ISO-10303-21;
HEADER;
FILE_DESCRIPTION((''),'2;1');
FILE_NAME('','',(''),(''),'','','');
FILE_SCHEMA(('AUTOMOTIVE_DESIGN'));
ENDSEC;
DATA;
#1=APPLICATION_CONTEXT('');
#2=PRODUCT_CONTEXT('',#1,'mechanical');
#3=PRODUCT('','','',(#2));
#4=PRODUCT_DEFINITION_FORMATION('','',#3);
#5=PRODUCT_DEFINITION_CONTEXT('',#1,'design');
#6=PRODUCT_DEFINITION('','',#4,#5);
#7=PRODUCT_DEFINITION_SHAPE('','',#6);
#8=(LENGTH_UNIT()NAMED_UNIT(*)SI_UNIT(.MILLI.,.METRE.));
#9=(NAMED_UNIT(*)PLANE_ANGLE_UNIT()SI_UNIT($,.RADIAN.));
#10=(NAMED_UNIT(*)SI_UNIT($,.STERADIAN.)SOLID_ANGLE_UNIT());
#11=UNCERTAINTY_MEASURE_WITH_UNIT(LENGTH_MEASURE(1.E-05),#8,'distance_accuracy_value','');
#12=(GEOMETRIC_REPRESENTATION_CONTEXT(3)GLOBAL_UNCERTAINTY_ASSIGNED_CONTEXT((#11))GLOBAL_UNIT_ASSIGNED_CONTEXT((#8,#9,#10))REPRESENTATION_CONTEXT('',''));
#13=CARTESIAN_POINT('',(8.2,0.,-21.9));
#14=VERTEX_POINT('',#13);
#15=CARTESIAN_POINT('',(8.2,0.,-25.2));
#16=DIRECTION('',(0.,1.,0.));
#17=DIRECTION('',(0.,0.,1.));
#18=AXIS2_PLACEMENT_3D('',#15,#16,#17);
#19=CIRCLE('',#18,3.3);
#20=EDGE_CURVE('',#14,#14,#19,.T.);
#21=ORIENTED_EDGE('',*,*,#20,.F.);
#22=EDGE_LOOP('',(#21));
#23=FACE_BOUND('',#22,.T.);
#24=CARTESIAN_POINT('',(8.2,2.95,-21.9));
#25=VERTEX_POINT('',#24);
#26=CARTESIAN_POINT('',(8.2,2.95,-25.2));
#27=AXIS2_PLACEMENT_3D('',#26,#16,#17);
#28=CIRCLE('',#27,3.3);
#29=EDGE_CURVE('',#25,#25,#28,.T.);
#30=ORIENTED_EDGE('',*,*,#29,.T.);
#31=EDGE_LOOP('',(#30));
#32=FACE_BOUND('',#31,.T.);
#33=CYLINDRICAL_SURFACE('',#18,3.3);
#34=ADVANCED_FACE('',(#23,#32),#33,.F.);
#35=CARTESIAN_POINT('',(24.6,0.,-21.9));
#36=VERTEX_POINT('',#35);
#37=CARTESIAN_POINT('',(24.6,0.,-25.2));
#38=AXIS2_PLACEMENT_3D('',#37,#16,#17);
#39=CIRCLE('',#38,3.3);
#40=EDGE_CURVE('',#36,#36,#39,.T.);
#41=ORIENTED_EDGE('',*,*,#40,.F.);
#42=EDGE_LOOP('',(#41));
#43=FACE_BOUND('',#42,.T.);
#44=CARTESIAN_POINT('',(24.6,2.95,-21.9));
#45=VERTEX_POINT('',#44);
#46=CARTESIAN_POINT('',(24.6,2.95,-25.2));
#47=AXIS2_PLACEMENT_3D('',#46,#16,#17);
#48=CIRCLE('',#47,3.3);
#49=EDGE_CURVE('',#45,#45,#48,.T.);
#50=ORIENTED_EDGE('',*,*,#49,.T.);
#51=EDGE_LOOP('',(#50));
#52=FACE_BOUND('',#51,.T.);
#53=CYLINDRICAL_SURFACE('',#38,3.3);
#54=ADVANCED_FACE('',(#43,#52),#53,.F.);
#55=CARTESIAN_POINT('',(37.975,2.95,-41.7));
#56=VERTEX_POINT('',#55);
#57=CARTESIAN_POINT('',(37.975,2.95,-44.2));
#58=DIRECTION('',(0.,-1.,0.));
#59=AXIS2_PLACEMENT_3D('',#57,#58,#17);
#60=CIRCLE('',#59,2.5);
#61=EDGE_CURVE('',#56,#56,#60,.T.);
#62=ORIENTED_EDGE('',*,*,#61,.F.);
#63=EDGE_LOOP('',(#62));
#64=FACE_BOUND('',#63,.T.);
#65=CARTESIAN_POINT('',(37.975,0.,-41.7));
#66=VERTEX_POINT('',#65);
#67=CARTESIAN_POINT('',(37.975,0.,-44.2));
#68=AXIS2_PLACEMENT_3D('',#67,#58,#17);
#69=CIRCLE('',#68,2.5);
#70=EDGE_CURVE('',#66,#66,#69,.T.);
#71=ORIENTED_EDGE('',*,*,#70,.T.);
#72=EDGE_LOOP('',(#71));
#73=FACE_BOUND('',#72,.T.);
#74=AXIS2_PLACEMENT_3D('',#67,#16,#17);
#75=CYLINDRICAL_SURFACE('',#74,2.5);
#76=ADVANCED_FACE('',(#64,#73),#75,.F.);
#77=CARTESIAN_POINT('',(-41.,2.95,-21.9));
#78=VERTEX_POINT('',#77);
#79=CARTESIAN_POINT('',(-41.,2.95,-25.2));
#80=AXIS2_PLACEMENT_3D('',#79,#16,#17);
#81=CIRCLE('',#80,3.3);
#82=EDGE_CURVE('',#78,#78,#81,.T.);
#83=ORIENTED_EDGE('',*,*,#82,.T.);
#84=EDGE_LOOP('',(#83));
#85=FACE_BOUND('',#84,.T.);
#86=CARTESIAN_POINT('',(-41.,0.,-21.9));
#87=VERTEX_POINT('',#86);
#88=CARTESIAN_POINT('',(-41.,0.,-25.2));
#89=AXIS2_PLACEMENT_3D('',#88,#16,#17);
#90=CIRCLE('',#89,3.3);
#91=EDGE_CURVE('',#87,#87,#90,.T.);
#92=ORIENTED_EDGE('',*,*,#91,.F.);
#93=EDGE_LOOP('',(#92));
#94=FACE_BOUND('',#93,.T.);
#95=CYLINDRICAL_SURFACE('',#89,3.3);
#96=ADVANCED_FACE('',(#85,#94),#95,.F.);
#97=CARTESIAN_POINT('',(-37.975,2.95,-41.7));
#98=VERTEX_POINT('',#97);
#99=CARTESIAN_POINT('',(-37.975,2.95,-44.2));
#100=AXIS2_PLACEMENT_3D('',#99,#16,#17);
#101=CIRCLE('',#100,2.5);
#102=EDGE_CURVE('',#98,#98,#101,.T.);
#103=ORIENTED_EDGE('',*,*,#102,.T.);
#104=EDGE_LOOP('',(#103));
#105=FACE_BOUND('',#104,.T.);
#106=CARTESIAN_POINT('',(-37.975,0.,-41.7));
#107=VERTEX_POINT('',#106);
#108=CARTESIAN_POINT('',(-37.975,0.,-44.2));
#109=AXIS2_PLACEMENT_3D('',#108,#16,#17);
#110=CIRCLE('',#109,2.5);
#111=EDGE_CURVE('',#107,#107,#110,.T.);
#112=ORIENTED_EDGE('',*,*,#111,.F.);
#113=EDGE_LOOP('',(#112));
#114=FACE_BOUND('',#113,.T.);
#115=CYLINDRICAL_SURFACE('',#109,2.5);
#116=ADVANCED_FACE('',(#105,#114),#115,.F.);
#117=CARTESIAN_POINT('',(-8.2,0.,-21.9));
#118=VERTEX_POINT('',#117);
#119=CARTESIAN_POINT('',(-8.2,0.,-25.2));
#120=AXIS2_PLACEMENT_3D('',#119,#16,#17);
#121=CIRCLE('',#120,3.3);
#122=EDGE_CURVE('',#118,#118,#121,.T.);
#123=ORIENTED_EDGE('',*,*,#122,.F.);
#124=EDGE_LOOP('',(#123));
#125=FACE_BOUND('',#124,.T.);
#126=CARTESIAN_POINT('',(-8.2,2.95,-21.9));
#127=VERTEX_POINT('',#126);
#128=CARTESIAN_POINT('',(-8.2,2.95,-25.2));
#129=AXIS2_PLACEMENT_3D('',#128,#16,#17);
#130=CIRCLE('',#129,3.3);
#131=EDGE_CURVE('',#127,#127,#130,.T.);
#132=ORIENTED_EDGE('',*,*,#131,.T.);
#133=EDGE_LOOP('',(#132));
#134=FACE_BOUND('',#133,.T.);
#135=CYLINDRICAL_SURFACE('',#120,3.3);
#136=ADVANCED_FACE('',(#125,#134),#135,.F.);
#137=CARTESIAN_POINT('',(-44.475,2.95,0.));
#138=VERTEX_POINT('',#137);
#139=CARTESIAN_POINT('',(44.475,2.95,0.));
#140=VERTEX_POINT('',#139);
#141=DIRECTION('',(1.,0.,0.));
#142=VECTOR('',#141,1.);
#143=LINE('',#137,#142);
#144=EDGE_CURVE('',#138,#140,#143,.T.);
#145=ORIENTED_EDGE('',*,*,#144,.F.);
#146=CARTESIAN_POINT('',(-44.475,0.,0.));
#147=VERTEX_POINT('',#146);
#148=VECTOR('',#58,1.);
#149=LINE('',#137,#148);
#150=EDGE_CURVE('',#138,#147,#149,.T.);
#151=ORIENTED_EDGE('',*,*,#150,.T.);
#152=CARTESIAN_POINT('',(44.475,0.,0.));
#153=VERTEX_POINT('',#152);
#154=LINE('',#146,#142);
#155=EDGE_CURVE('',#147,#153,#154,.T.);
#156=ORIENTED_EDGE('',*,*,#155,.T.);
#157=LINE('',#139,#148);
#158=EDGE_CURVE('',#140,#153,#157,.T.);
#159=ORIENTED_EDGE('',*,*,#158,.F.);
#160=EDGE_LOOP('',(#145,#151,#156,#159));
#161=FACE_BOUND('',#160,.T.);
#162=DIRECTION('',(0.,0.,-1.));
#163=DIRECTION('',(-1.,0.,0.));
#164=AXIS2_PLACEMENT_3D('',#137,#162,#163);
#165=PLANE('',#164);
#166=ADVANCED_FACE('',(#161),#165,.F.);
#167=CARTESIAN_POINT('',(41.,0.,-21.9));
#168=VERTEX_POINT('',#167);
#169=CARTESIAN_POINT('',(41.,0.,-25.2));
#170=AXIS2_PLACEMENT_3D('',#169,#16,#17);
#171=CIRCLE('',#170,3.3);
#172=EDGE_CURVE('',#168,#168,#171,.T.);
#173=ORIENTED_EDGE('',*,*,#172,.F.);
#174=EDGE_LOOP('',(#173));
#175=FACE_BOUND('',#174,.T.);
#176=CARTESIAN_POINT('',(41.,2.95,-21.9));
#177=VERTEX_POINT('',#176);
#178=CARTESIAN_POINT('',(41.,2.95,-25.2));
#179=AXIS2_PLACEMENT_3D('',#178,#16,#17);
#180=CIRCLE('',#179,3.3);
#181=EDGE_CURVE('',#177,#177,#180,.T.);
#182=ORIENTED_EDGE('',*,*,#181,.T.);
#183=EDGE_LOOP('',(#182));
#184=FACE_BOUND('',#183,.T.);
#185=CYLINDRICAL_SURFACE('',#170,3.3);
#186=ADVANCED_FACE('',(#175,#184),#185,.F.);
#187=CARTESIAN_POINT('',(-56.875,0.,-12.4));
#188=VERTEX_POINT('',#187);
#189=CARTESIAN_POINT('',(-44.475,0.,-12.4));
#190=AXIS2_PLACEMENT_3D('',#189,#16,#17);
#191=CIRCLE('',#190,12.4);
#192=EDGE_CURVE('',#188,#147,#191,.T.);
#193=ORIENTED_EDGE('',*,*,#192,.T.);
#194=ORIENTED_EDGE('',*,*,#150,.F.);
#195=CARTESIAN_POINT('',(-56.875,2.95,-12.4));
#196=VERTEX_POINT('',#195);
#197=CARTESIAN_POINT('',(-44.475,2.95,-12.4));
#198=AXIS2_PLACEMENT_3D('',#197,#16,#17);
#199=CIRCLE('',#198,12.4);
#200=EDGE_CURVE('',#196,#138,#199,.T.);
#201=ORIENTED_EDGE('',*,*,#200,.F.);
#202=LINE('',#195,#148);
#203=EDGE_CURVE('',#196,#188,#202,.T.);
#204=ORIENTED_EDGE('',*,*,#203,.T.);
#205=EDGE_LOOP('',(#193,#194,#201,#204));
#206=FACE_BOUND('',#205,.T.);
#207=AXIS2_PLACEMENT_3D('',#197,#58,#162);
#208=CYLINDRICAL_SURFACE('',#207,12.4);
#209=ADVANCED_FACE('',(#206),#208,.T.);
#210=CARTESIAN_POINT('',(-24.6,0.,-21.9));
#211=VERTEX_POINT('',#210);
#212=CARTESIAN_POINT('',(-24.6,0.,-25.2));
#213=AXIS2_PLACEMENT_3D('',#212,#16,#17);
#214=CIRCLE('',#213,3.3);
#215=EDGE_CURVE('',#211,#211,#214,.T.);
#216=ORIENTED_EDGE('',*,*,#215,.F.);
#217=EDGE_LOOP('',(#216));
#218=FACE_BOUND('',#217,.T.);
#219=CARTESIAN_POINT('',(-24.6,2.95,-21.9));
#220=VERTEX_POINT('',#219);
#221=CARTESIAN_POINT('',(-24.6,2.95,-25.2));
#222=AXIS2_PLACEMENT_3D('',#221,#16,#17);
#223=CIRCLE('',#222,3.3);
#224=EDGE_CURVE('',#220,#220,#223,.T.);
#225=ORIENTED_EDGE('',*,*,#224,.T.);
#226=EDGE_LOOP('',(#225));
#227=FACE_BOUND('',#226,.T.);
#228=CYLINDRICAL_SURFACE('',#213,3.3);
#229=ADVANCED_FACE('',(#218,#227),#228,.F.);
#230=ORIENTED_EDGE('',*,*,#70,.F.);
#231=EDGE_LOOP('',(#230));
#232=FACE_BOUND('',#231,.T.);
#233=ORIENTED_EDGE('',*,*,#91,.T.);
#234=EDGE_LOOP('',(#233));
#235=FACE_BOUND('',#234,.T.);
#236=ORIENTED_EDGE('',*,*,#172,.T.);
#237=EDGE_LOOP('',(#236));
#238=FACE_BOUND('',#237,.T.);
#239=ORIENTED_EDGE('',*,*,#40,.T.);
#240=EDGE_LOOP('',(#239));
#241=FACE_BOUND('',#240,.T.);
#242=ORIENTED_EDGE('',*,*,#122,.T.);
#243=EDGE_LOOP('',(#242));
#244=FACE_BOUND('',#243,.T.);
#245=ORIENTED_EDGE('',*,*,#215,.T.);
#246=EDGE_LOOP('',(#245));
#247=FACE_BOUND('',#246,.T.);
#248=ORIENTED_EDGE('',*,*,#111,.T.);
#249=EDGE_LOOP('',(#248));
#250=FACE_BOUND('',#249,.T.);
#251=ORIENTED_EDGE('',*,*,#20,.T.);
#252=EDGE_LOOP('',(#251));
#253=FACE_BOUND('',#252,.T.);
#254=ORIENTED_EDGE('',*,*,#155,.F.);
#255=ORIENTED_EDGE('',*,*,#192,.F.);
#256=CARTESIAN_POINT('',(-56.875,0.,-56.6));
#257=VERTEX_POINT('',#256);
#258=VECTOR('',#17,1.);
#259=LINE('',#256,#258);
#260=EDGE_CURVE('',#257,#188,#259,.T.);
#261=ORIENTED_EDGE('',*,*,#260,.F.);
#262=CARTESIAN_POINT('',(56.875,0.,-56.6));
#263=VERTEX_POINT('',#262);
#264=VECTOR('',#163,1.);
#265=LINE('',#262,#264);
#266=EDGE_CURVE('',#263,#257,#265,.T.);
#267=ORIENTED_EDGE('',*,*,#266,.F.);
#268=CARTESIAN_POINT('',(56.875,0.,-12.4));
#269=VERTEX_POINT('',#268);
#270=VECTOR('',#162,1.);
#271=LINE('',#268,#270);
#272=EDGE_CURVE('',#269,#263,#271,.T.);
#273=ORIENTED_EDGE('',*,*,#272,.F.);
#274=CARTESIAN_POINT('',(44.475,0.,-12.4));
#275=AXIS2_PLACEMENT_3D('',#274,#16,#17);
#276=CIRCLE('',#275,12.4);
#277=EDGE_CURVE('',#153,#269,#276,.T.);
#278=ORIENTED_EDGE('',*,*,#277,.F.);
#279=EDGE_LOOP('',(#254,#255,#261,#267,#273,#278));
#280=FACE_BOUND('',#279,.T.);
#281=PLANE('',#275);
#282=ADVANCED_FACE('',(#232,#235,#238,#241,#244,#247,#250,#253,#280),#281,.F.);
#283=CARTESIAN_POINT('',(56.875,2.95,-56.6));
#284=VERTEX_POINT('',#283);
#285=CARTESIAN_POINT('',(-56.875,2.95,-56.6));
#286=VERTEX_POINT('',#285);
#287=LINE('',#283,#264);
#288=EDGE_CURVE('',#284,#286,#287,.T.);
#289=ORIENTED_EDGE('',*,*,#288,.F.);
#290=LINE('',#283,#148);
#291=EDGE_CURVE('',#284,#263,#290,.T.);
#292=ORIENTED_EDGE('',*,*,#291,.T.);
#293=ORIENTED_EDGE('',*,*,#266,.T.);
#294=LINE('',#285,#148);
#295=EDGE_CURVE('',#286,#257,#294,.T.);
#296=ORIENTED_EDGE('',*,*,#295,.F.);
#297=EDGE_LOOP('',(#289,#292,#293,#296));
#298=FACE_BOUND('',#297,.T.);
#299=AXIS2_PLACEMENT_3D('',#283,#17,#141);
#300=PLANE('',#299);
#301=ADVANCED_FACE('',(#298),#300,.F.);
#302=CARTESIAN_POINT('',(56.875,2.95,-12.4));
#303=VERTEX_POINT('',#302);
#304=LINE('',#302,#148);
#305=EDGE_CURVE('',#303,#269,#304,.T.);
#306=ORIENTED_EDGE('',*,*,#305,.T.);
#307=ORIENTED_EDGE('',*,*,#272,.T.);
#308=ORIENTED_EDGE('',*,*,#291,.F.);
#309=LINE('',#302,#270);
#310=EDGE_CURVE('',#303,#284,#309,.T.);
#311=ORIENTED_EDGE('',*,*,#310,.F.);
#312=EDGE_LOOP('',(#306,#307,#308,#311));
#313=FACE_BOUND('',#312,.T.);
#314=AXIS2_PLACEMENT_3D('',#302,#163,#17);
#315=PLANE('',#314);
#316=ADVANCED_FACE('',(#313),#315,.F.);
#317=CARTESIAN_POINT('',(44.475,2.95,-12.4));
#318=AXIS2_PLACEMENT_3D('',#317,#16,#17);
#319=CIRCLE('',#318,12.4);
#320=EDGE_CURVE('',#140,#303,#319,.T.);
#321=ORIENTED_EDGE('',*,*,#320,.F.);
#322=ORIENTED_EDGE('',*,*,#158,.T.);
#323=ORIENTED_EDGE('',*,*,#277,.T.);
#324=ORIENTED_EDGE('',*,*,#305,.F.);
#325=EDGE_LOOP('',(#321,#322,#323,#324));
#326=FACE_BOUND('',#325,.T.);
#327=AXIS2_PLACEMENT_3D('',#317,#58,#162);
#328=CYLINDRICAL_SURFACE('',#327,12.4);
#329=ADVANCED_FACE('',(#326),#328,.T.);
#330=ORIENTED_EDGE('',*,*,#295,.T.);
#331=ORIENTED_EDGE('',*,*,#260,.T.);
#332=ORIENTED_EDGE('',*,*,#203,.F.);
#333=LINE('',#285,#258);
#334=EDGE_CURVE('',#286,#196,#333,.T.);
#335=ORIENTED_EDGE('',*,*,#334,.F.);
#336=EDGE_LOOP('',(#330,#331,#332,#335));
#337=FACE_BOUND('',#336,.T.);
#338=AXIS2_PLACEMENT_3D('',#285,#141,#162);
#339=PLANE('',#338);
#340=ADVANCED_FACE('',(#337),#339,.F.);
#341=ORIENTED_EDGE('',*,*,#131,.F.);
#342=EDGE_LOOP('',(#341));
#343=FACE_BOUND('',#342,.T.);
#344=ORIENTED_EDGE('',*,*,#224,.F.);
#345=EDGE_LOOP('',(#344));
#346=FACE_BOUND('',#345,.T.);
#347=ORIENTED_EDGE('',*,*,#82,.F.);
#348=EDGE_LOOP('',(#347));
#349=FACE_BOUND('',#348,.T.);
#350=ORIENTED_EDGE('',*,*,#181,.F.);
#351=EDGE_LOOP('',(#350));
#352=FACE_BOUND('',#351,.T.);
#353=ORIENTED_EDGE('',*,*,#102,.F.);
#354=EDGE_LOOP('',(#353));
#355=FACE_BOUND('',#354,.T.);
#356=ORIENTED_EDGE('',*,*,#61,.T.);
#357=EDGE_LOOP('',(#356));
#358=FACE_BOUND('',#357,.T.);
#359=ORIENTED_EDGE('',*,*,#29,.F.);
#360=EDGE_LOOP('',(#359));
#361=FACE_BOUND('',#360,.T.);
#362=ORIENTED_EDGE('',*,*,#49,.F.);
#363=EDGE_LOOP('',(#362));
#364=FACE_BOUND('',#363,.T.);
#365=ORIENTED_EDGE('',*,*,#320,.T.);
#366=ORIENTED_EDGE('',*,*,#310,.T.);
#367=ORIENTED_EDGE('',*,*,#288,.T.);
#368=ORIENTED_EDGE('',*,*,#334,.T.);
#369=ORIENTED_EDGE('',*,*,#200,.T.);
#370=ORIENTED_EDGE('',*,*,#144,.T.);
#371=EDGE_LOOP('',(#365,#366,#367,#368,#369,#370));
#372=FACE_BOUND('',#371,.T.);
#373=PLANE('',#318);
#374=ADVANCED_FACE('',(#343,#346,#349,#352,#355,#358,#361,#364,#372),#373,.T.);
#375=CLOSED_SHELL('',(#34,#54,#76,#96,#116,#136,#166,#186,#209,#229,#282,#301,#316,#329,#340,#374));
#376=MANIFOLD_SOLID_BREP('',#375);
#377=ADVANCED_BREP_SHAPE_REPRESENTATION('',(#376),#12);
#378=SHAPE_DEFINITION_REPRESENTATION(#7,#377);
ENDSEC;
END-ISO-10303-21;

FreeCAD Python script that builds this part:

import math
import FreeCAD as App
import Part
import Sketcher
from FreeCAD import Vector
Q = App.Units.Quantity

doc = App.newDocument("Part")
params = doc.addObject("Spreadsheet::Sheet", "Params")
for row, (alias, value) in enumerate([
    ("sketch1_radius", "12.4 mm"),
    ("sketch1_height", "44.2 mm"),
    ("sketch1_width", "88.95 mm"),
    ("pad1_length", "2.95 mm"),
    ("sketch2_diameter", "6.6 mm"),
    ("sketch3_diameter", "5 mm"),
], start=1):
    params.set(f"A{row}", alias)
    params.set(f"B{row}", "=" + value)
    params.setAlias(f"B{row}", alias)

body = doc.addObject("PartDesign::Body", "Body")

# Sketch on XZ plane
sketch1 = body.newObject("Sketcher::SketchObject", "Sketch")
sketch1.AttachmentSupport = (doc.getObject("XZ_Plane"), [""])
sketch1.MapMode = "FlatFace"
sketch1.addGeometry(Part.LineSegment(Vector(-44, 0, 0), Vector(44, 0, 0)), False)
sketch1.addGeometry(Part.ArcOfCircle(Part.Circle(Vector(44, -12, 0), Vector(0, 0, 1), 12), math.radians(0), math.radians(90)), False)
sketch1.addGeometry(Part.LineSegment(Vector(57, -12, 0), Vector(57, -57, 0)), False)
sketch1.addGeometry(Part.LineSegment(Vector(57, -57, 0), Vector(-57, -57, 0)), False)
sketch1.addGeometry(Part.LineSegment(Vector(-57, -57, 0), Vector(-57, -12, 0)), False)
sketch1.addGeometry(Part.ArcOfCircle(Part.Circle(Vector(-44, -12, 0), Vector(0, 0, 1), 12), math.radians(90), math.radians(180)), False)
sketch1.addConstraint(Sketcher.Constraint("Tangent", 0, 2, 1, 2))
sketch1.addConstraint(Sketcher.Constraint("Tangent", 1, 1, 2, 1))
sketch1.addConstraint(Sketcher.Constraint("Coincident", 2, 2, 3, 1))
sketch1.addConstraint(Sketcher.Constraint("Coincident", 3, 2, 4, 1))
sketch1.addConstraint(Sketcher.Constraint("Tangent", 4, 2, 5, 2))
sketch1.addConstraint(Sketcher.Constraint("Tangent", 5, 1, 0, 1))
sketch1.addConstraint(Sketcher.Constraint("Horizontal", 0))
sketch1.addConstraint(Sketcher.Constraint("Vertical", 2))
sketch1.addConstraint(Sketcher.Constraint("Horizontal", 3))
sketch1.addConstraint(Sketcher.Constraint("Vertical", 4))
sketch1.addConstraint(Sketcher.Constraint("Equal", 1, 5))
sketch1.addConstraint(Sketcher.Constraint("Symmetric", 0, 2, 5, 1, -1, 1))
sketch1.addConstraint(Sketcher.Constraint("Radius", 1, Q("12.4 mm")))
sketch1.addConstraint(Sketcher.Constraint("DistanceY", 2, 2, 2, 1, Q("44.2 mm")))
sketch1.addConstraint(Sketcher.Constraint("DistanceX", 0, 1, 0, 2, Q("88.95 mm")))
sketch1.setExpression("Constraints[12]", "Params.sketch1_radius")
sketch1.setExpression("Constraints[13]", "Params.sketch1_height")
sketch1.setExpression("Constraints[14]", "Params.sketch1_width")
pad1 = body.newObject("PartDesign::Pad", "Pad")
pad1.Profile = sketch1
pad1.setExpression("Length", "Params.pad1_length")
pad1.Reversed = True

# Sketch on XZ plane
sketch2 = body.newObject("Sketcher::SketchObject", "Sketch001")
sketch2.AttachmentSupport = (doc.getObject("XZ_Plane"), [""])
sketch2.MapMode = "FlatFace"
sketch2.AttachmentOffset = App.Placement(Vector(0, 0, -2.95), App.Rotation())
sketch2.addGeometry(Part.Circle(Vector(-41, -25.2, 0), Vector(0, 0, 1), 3.3), False)
sketch2.addGeometry(Part.Circle(Vector(-24.6, -25.2, 0), Vector(0, 0, 1), 3.3), False)
sketch2.addGeometry(Part.Circle(Vector(-8.2, -25.2, 0), Vector(0, 0, 1), 3.3), False)
sketch2.addGeometry(Part.Circle(Vector(8.2, -25.2, 0), Vector(0, 0, 1), 3.3), False)
sketch2.addGeometry(Part.Circle(Vector(24.6, -25.2, 0), Vector(0, 0, 1), 3.3), False)
sketch2.addGeometry(Part.Circle(Vector(41, -25.2, 0), Vector(0, 0, 1), 3.3), False)
sketch2.addConstraint(Sketcher.Constraint("Equal", 0, 1))
sketch2.addConstraint(Sketcher.Constraint("Equal", 1, 2))
sketch2.addConstraint(Sketcher.Constraint("Equal", 2, 3))
sketch2.addConstraint(Sketcher.Constraint("Equal", 3, 4))
sketch2.addConstraint(Sketcher.Constraint("Equal", 4, 5))
sketch2.addConstraint(Sketcher.Constraint("Symmetric", 2, 3, 3, 3, -2))
sketch2.addConstraint(Sketcher.Constraint("Symmetric", 1, 3, 4, 3, -2))
sketch2.addConstraint(Sketcher.Constraint("Symmetric", 0, 3, 5, 3, -2))
sketch2.addConstraint(Sketcher.Constraint("Horizontal", 0, 3, 1, 3))
sketch2.addConstraint(Sketcher.Constraint("Horizontal", 1, 3, 2, 3))
sketch2.addConstraint(Sketcher.Constraint("Diameter", 0, Q("6.6 mm")))
sketch2.addConstraint(Sketcher.Constraint("DistanceX", 0, 3, -1, 1, Q("41 mm")))
sketch2.addConstraint(Sketcher.Constraint("DistanceY", 0, 3, -1, 1, Q("25.2 mm")))
sketch2.addConstraint(Sketcher.Constraint("DistanceX", 1, 3, -1, 1, Q("24.6 mm")))
sketch2.addConstraint(Sketcher.Constraint("DistanceX", 2, 3, -1, 1, Q("8.2 mm")))
sketch2.setExpression("Constraints[10]", "Params.sketch2_diameter")
pocket1 = body.newObject("PartDesign::Pocket", "Pocket")
pocket1.Profile = sketch2
pocket1.Type = "ThroughAll"
pocket1.Reversed = True

# Sketch on XZ plane
sketch3 = body.newObject("Sketcher::SketchObject", "Sketch002")
sketch3.AttachmentSupport = (doc.getObject("XZ_Plane"), [""])
sketch3.MapMode = "FlatFace"
sketch3.AttachmentOffset = App.Placement(Vector(0, 0, -2.95), App.Rotation())
sketch3.addGeometry(Part.Circle(Vector(-38, -44.2, 0), Vector(0, 0, 1), 2.5), False)
sketch3.addConstraint(Sketcher.Constraint("Diameter", 0, Q("5 mm")))
sketch3.addConstraint(Sketcher.Constraint("DistanceY", 0, 3, -1, 1, Q("44.2 mm")))
sketch3.addConstraint(Sketcher.Constraint("DistanceX", 0, 3, -1, 1, Q("37.975 mm")))
sketch3.setExpression("Constraints[0]", "Params.sketch3_diameter")
pocket2 = body.newObject("PartDesign::Pocket", "Pocket001")
pocket2.Profile = sketch3
pocket2.Type = "ThroughAll"
pocket2.Reversed = True
doc.recompute()

mirrored = body.newObject("PartDesign::Mirrored", "Mirrored")
mirrored.Originals = [pocket2]
mirrored.MirrorPlane = (doc.getObject("YZ_Plane"), [""])
body.Tip = mirrored

doc.recompute()
